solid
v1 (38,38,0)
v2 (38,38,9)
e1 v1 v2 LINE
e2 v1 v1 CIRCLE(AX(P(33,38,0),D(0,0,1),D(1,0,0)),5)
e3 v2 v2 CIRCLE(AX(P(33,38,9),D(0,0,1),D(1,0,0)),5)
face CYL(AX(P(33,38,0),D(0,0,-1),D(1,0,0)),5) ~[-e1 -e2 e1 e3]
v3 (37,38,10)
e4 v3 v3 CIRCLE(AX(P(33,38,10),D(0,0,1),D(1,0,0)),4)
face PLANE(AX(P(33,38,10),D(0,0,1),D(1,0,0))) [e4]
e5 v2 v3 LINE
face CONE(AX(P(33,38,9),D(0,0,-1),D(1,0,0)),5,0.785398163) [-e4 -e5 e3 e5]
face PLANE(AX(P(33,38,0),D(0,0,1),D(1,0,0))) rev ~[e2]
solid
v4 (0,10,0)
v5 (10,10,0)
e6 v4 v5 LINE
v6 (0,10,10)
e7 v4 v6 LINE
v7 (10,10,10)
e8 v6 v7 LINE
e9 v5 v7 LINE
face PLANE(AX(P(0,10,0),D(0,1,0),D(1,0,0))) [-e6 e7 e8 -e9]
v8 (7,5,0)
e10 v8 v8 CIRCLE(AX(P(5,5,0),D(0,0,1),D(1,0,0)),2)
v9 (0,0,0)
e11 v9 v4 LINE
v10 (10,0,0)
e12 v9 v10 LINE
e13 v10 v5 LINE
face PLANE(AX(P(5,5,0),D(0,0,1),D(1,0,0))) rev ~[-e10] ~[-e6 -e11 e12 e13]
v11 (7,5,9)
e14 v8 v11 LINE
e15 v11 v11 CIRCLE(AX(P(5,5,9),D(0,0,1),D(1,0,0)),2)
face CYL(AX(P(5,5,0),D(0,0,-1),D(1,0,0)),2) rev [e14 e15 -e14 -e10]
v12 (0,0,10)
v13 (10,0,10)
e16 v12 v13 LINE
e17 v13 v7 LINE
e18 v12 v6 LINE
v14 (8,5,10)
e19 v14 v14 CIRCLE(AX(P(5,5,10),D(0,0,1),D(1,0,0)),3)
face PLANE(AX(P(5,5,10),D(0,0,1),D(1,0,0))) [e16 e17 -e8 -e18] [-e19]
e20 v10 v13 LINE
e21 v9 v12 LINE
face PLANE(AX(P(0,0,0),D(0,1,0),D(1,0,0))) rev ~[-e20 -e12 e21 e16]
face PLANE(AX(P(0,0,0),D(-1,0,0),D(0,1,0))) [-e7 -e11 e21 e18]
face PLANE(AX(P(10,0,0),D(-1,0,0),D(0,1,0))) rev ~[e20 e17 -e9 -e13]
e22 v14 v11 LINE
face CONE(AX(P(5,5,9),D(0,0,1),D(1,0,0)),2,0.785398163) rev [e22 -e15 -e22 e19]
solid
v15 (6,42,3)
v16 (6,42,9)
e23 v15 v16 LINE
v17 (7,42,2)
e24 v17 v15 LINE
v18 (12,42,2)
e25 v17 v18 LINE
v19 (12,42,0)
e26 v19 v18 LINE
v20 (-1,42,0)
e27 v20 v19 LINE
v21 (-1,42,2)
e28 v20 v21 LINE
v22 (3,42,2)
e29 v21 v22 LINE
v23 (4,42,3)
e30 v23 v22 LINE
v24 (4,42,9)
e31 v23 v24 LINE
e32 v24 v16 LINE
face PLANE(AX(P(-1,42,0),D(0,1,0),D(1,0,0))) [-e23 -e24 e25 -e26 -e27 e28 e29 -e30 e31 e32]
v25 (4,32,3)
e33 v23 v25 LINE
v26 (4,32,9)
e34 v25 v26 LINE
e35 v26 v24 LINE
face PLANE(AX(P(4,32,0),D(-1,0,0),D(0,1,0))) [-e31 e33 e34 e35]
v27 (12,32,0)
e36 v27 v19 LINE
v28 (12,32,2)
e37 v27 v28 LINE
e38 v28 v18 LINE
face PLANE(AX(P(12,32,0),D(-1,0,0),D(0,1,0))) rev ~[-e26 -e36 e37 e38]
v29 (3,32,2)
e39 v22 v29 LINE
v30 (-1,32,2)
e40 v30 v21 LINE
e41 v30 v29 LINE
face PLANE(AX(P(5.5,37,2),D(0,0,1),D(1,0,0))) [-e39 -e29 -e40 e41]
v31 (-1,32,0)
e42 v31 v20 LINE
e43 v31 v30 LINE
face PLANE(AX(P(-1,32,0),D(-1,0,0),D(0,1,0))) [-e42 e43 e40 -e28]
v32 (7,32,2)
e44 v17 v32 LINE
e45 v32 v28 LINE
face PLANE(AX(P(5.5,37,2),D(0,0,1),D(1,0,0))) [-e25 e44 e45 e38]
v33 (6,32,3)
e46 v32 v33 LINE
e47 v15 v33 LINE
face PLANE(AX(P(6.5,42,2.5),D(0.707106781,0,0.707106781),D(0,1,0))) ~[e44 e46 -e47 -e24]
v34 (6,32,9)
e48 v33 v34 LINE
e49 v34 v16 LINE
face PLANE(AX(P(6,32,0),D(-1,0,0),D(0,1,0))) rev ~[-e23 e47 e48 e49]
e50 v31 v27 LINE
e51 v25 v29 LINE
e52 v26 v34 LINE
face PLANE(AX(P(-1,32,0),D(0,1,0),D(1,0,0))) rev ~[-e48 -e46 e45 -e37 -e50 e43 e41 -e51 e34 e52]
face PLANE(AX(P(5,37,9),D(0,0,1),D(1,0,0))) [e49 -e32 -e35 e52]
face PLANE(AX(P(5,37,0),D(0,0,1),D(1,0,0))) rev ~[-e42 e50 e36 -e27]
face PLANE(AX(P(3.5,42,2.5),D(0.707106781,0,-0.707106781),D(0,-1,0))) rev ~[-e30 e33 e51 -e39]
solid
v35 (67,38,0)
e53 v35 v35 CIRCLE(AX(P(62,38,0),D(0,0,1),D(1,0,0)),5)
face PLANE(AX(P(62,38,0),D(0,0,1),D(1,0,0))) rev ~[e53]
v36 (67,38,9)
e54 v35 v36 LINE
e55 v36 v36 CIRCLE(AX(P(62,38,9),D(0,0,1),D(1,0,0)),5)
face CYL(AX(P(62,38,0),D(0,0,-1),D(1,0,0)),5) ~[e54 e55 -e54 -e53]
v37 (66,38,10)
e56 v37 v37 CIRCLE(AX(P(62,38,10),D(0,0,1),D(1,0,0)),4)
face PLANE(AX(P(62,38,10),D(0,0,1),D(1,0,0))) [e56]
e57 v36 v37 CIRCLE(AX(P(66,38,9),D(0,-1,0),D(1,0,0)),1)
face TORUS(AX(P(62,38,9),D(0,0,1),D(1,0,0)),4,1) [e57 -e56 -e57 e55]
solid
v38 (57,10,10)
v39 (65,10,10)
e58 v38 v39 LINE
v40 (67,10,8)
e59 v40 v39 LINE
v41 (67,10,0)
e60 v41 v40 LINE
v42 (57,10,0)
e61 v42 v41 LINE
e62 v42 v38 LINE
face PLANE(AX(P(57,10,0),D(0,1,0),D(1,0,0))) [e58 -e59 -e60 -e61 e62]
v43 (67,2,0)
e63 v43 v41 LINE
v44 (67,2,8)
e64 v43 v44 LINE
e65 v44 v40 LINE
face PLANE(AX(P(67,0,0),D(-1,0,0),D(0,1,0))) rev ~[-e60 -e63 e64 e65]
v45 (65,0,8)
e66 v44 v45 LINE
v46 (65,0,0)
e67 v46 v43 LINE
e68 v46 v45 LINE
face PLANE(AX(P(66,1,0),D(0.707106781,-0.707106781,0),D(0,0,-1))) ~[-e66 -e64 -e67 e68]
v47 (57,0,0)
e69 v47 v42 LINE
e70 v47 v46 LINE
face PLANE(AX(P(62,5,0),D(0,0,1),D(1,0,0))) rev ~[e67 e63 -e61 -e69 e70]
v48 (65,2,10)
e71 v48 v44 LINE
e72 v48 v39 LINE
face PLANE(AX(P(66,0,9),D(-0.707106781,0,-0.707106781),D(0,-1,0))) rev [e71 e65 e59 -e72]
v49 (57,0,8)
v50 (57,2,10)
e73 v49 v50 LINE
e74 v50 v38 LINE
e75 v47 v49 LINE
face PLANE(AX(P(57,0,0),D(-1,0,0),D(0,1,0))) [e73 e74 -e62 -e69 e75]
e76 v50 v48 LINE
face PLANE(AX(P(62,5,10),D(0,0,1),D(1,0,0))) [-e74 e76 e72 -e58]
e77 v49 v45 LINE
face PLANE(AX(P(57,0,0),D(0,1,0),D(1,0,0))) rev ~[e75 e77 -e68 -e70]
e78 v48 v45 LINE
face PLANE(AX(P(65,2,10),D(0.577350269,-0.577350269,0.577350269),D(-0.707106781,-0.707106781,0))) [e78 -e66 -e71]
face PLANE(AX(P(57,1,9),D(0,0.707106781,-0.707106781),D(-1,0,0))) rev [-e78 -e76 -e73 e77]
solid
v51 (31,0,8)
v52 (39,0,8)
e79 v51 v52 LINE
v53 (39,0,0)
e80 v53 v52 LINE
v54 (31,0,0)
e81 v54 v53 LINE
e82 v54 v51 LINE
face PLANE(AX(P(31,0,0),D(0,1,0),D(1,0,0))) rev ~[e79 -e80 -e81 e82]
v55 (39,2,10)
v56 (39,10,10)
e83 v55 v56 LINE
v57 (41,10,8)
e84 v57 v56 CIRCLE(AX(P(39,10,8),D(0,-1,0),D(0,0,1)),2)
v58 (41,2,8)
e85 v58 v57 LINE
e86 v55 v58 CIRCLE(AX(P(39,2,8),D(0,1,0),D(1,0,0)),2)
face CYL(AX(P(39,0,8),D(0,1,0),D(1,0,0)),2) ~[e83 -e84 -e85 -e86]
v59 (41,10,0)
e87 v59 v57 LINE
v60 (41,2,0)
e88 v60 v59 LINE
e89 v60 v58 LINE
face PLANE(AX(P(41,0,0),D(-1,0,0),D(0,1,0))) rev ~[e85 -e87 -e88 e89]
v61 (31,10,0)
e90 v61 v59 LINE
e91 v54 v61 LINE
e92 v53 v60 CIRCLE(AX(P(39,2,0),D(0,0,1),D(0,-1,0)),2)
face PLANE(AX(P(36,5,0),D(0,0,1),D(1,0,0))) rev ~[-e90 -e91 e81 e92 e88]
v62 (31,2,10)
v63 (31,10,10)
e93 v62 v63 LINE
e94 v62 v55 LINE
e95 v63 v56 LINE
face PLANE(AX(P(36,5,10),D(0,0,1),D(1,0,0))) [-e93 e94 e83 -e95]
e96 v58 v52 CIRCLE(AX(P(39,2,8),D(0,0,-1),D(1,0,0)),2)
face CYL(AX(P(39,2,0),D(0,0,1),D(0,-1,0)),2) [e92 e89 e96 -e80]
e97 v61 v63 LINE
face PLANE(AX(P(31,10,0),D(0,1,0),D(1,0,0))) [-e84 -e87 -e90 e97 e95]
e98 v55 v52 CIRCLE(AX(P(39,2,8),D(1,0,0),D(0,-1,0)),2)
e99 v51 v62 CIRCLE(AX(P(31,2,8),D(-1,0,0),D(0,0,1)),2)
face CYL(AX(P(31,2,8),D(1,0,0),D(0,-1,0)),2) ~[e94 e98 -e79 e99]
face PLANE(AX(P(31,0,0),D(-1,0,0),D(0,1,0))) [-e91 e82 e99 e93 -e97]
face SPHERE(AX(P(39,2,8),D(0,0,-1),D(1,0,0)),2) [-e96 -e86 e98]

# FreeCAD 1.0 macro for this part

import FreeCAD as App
import Part
import Sketcher
from FreeCAD import Vector


def edges_at(feature, points):
    """Names of the edges that pass closest to the given points."""
    edges = feature.Shape.Edges
    near = lambda p: min(range(len(edges)), key=lambda i: edges[i].distToShape(Part.Vertex(*p))[0])
    return sorted({f"Edge{near(p) + 1}" for p in points})


def add_polygon(sketch, points):
    """Adds a closed chain of lines whose ends are joined by coincident constraints."""
    first, n = sketch.GeometryCount, len(points)
    for a, b in zip(points, points[1:] + points[:1]):
        sketch.addGeometry(Part.LineSegment(App.Vector(*a, 0), App.Vector(*b, 0)), False)
    for i in range(n):
        sketch.addConstraint(Sketcher.Constraint("Coincident", first + i, 2, first + (i + 1) % n, 1))

doc = App.newDocument("Part")
body = doc.addObject("PartDesign::Body", "Body")

sketch1 = body.newObject("Sketcher::SketchObject", "Sketch")
sketch1.AttachmentSupport = (doc.getObject("XY_Plane"), [""])
sketch1.MapMode = "FlatFace"
add_polygon(sketch1, [(31, 10), (31, 0), (41, 0), (41, 10)])
sketch1.addConstraint(Sketcher.Constraint("Vertical", 0))
sketch1.addConstraint(Sketcher.Constraint("Horizontal", 1))
sketch1.addConstraint(Sketcher.Constraint("Vertical", 2))
sketch1.addConstraint(Sketcher.Constraint("Horizontal", 3))
sketch1.addConstraint(Sketcher.Constraint("PointOnObject", 0, 2, -1))
sketch1.addConstraint(Sketcher.Constraint("Equal", 3, 0))
sketch1.addConstraint(Sketcher.Constraint("DistanceX", 1, 1, 1, 2, 10.0))
sketch1.addConstraint(Sketcher.Constraint("DistanceX", -1, 1, 0, 2, 31.0))
pad1 = body.newObject("PartDesign::Pad", "Pad")
pad1.Profile = sketch1
pad1.Length = 10
doc.recompute()

fillet = body.newObject("PartDesign::Fillet", "Fillet")
fillet.Base = (pad1, edges_at(pad1, [(41, 0, 5), (41, 5, 10), (36, 0, 10)]))
fillet.Radius = 2
body2 = doc.addObject("PartDesign::Body", "Body001")

sketch2 = body2.newObject("Sketcher::SketchObject", "Sketch001")
sketch2.AttachmentSupport = (doc.getObject("XY_Plane001"), [""])
sketch2.MapMode = "FlatFace"
add_polygon(sketch2, [(57, 10), (57, 0), (67, 0), (67, 10)])
sketch2.addConstraint(Sketcher.Constraint("Vertical", 0))
sketch2.addConstraint(Sketcher.Constraint("Horizontal", 1))
sketch2.addConstraint(Sketcher.Constraint("Vertical", 2))
sketch2.addConstraint(Sketcher.Constraint("Horizontal", 3))
sketch2.addConstraint(Sketcher.Constraint("PointOnObject", 0, 2, -1))
sketch2.addConstraint(Sketcher.Constraint("Equal", 3, 0))
sketch2.addConstraint(Sketcher.Constraint("DistanceX", 1, 1, 1, 2, 10.0))
sketch2.addConstraint(Sketcher.Constraint("DistanceX", -1, 1, 0, 2, 57.0))
pad2 = body2.newObject("PartDesign::Pad", "Pad001")
pad2.Profile = sketch2
pad2.Length = 10
doc.recompute()

chamfer = body2.newObject("PartDesign::Chamfer", "Chamfer")
chamfer.Base = (pad2, edges_at(pad2, [(67, 0, 5), (67, 5, 10), (62, 0, 10)]))
chamfer.Size = 2
body3 = doc.addObject("PartDesign::Body", "Body002")

sketch3 = body3.newObject("Sketcher::SketchObject", "Sketch002")
sketch3.AttachmentSupport = (doc.getObject("XY_Plane002"), [""])
sketch3.MapMode = "FlatFace"
sketch3.addGeometry(Part.Circle(Vector(5, 5, 0), Vector(0, 0, 1), 2), False)
sketch3.addConstraint(Sketcher.Constraint("Diameter", 0, 4.0))
sketch3.addConstraint(Sketcher.Constraint("DistanceX", -1, 1, 0, 3, 5.0))
sketch3.addConstraint(Sketcher.Constraint("DistanceY", -1, 1, 0, 3, 5.0))
pad3 = body3.newObject("PartDesign::Pad", "Pad002")
pad3.Profile = sketch3
pad3.Length = 10
body4 = doc.addObject("PartDesign::Body", "Body003")

sketch4 = body4.newObject("Sketcher::SketchObject", "Sketch003")
sketch4.AttachmentSupport = (doc.getObject("XY_Plane003"), [""])
sketch4.MapMode = "FlatFace"
add_polygon(sketch4, [(0, 10), (0, 0), (10, 0), (10, 10)])
sketch4.addConstraint(Sketcher.Constraint("Vertical", 0))
sketch4.addConstraint(Sketcher.Constraint("Horizontal", 1))
sketch4.addConstraint(Sketcher.Constraint("Vertical", 2))
sketch4.addConstraint(Sketcher.Constraint("Horizontal", 3))
sketch4.addConstraint(Sketcher.Constraint("Coincident", 0, 2, -1, 1))
sketch4.addConstraint(Sketcher.Constraint("Equal", 3, 0))
sketch4.addConstraint(Sketcher.Constraint("DistanceX", 1, 1, 1, 2, 10.0))
pad4 = body4.newObject("PartDesign::Pad", "Pad003")
pad4.Profile = sketch4
pad4.Length = 10
doc.recompute()

boolean = body4.newObject("PartDesign::Boolean", "Boolean")
boolean.Type = "Cut"
boolean.addObjects([body3])
doc.recompute()

chamfer2 = body4.newObject("PartDesign::Chamfer", "Chamfer001")
chamfer2.Base = (boolean, edges_at(boolean, [(3, 5, 10)]))
chamfer2.Size = 1
body5 = doc.addObject("PartDesign::Body", "Body004")

sketch5 = body5.newObject("Sketcher::SketchObject", "Sketch004")
sketch5.AttachmentSupport = (doc.getObject("XY_Plane004"), [""])
sketch5.MapMode = "FlatFace"
sketch5.addGeometry(Part.Circle(Vector(62, 38, 0), Vector(0, 0, 1), 5), False)
sketch5.addConstraint(Sketcher.Constraint("Diameter", 0, 10.0))
sketch5.addConstraint(Sketcher.Constraint("DistanceX", -1, 1, 0, 3, 62.0))
sketch5.addConstraint(Sketcher.Constraint("DistanceY", -1, 1, 0, 3, 38.0))
pad5 = body5.newObject("PartDesign::Pad", "Pad004")
pad5.Profile = sketch5
pad5.Length = 10
doc.recompute()

fillet2 = body5.newObject("PartDesign::Fillet", "Fillet001")
fillet2.Base = (pad5, edges_at(pad5, [(57, 38, 10)]))
fillet2.Radius = 1
body6 = doc.addObject("PartDesign::Body", "Body005")

sketch6 = body6.newObject("Sketcher::SketchObject", "Sketch005")
sketch6.AttachmentSupport = (doc.getObject("XY_Plane005"), [""])
sketch6.MapMode = "FlatFace"
sketch6.addGeometry(Part.Circle(Vector(33, 38, 0), Vector(0, 0, 1), 5), False)
sketch6.addConstraint(Sketcher.Constraint("Diameter", 0, 10.0))
sketch6.addConstraint(Sketcher.Constraint("DistanceX", -1, 1, 0, 3, 33.0))
sketch6.addConstraint(Sketcher.Constraint("DistanceY", -1, 1, 0, 3, 38.0))
pad6 = body6.newObject("PartDesign::Pad", "Pad005")
pad6.Profile = sketch6
pad6.Length = 10
doc.recompute()

chamfer3 = body6.newObject("PartDesign::Chamfer", "Chamfer002")
chamfer3.Base = (pad6, edges_at(pad6, [(28, 38, 10)]))
chamfer3.Size = 1
body7 = doc.addObject("PartDesign::Body", "Body006")

sketch7 = body7.newObject("Sketcher::SketchObject", "Sketch006")
sketch7.AttachmentSupport = (doc.getObject("XY_Plane006"), [""])
sketch7.MapMode = "FlatFace"
add_polygon(sketch7, [(4, 42), (4, 32), (6, 32), (6, 42)])
sketch7.addConstraint(Sketcher.Constraint("Vertical", 0))
sketch7.addConstraint(Sketcher.Constraint("Horizontal", 1))
sketch7.addConstraint(Sketcher.Constraint("Vertical", 2))
sketch7.addConstraint(Sketcher.Constraint("Horizontal", 3))
sketch7.addConstraint(Sketcher.Constraint("DistanceX", 1, 1, 1, 2, 2.0))
sketch7.addConstraint(Sketcher.Constraint("DistanceY", 0, 2, 0, 1, 10.0))
sketch7.addConstraint(Sketcher.Constraint("DistanceX", -1, 1, 0, 2, 4.0))
sketch7.addConstraint(Sketcher.Constraint("DistanceY", -1, 1, 0, 2, 32.0))
pad7 = body7.newObject("PartDesign::Pad", "Pad006")
pad7.Profile = sketch7
pad7.Length = 9
body8 = doc.addObject("PartDesign::Body", "Body007")

sketch8 = body8.newObject("Sketcher::SketchObject", "Sketch007")
sketch8.AttachmentSupport = (doc.getObject("XY_Plane007"), [""])
sketch8.MapMode = "FlatFace"
add_polygon(sketch8, [(-1, 42), (-1, 32), (12, 32), (12, 42)])
sketch8.addConstraint(Sketcher.Constraint("Vertical", 0))
sketch8.addConstraint(Sketcher.Constraint("Horizontal", 1))
sketch8.addConstraint(Sketcher.Constraint("Vertical", 2))
sketch8.addConstraint(Sketcher.Constraint("Horizontal", 3))
sketch8.addConstraint(Sketcher.Constraint("DistanceX", 1, 1, 1, 2, 13.0))
sketch8.addConstraint(Sketcher.Constraint("DistanceY", 0, 2, 0, 1, 10.0))
sketch8.addConstraint(Sketcher.Constraint("DistanceX", 0, 2, -1, 1, 1.0))
sketch8.addConstraint(Sketcher.Constraint("DistanceY", -1, 1, 0, 2, 32.0))
pad8 = body8.newObject("PartDesign::Pad", "Pad007")
pad8.Profile = sketch8
pad8.Length = 2
doc.recompute()

boolean2 = body8.newObject("PartDesign::Boolean", "Boolean001")
boolean2.Type = "Fuse"
boolean2.addObjects([body7])
doc.recompute()

chamfer4 = body8.newObject("PartDesign::Chamfer", "Chamfer003")
chamfer4.Base = (boolean2, edges_at(boolean2, [(6, 37, 2)]))
chamfer4.Size = 1
doc.recompute()

chamfer5 = body8.newObject("PartDesign::Chamfer", "Chamfer004")
chamfer5.Base = (chamfer4, edges_at(chamfer4, [(4, 37, 2)]))
chamfer5.Size = 1

doc.recompute()
